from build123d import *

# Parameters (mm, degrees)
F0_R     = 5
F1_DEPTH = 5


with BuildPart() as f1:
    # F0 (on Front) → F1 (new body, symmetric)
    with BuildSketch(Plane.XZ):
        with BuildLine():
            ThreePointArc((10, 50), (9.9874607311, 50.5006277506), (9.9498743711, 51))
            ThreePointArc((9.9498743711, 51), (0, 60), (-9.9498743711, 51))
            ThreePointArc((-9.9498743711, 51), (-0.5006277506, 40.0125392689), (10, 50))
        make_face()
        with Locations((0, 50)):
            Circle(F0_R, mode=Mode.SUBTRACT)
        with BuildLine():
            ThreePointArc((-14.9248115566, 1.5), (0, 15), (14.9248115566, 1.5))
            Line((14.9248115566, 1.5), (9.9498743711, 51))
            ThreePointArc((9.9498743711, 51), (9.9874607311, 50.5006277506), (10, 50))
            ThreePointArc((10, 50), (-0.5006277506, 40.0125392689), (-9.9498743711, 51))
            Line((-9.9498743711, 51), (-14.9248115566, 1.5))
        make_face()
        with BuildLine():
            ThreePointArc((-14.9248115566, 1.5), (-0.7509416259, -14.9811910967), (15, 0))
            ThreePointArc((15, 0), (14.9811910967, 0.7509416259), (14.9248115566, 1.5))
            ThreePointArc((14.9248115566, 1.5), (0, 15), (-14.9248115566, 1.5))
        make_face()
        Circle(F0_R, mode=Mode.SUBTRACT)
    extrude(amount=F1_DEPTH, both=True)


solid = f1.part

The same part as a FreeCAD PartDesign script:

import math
import FreeCAD as App
import Part
import Sketcher
Q = App.Units.Quantity

doc = App.newDocument("Part")
body = doc.addObject("PartDesign::Body", "Body")

# Sketch on XZ plane
sketch1 = doc.addObject("Sketcher::SketchObject", "Sketch")
body.addObject(sketch1)
sketch1.AttachmentSupport = (doc.XZ_Plane, [""])
sketch1.MapMode = "FlatFace"
sketch1.addGeometry(Part.ArcOfCircle(Part.Circle(App.Vector(0, 50, 0), App.Vector(0, 0, 1), 10), math.radians(5.73917), math.radians(174.26083)), False)
sketch1.addGeometry(Part.LineSegment(App.Vector(-9.949874, 51, 0), App.Vector(-14.924812, 1.5, 0)), False)
sketch1.addGeometry(Part.ArcOfCircle(Part.Circle(App.Vector(0, 0, 0), App.Vector(0, 0, 1), 15), math.radians(174.26083), math.radians(360)), False)
sketch1.addGeometry(Part.ArcOfCircle(Part.Circle(App.Vector(0, 0, 0), App.Vector(0, 0, 1), 15), math.radians(0), math.radians(5.73917)), False)
sketch1.addGeometry(Part.LineSegment(App.Vector(14.924812, 1.5, 0), App.Vector(9.949874, 51, 0)), False)
sketch1.addGeometry(Part.Circle(App.Vector(0, 0, 0), App.Vector(0, 0, 1), 5), False)
sketch1.addGeometry(Part.Circle(App.Vector(0, 50, 0), App.Vector(0, 0, 1), 5), False)
sketch1.addConstraint(Sketcher.Constraint("Tangent", 0, 2, 1, 1))
sketch1.addConstraint(Sketcher.Constraint("Tangent", 1, 2, 2, 1))
sketch1.addConstraint(Sketcher.Constraint("Tangent", 2, 2, 3, 1))
sketch1.addConstraint(Sketcher.Constraint("Tangent", 3, 2, 4, 1))
sketch1.addConstraint(Sketcher.Constraint("Tangent", 4, 2, 0, 1))
sketch1.addConstraint(Sketcher.Constraint("Coincident", 2, 3, -1, 1))
sketch1.addConstraint(Sketcher.Constraint("Coincident", 5, 3, -1, 1))
sketch1.addConstraint(Sketcher.Constraint("Coincident", 6, 3, 0, 3))
sketch1.addConstraint(Sketcher.Constraint("Equal", 2, 3))
sketch1.addConstraint(Sketcher.Constraint("Equal", 5, 6))
sketch1.addConstraint(Sketcher.Constraint("PointOnObject", 0, 3, -2))
sketch1.addConstraint(Sketcher.Constraint("PointOnObject", 2, 2, -1))
sketch1.addConstraint(Sketcher.Constraint("Diameter", 5, Q("10 mm")))
sketch1.addConstraint(Sketcher.Constraint("Radius", 0, Q("10 mm")))
sketch1.addConstraint(Sketcher.Constraint("Radius", 2, Q("15 mm")))
sketch1.addConstraint(Sketcher.Constraint("DistanceY", -1, 1, 0, 3, Q("50 mm")))
pad1 = doc.addObject("PartDesign::Pad", "Pad")
body.addObject(pad1)
pad1.Profile = sketch1
pad1.Length = 10
pad1.Midplane = True

doc.recompute()
